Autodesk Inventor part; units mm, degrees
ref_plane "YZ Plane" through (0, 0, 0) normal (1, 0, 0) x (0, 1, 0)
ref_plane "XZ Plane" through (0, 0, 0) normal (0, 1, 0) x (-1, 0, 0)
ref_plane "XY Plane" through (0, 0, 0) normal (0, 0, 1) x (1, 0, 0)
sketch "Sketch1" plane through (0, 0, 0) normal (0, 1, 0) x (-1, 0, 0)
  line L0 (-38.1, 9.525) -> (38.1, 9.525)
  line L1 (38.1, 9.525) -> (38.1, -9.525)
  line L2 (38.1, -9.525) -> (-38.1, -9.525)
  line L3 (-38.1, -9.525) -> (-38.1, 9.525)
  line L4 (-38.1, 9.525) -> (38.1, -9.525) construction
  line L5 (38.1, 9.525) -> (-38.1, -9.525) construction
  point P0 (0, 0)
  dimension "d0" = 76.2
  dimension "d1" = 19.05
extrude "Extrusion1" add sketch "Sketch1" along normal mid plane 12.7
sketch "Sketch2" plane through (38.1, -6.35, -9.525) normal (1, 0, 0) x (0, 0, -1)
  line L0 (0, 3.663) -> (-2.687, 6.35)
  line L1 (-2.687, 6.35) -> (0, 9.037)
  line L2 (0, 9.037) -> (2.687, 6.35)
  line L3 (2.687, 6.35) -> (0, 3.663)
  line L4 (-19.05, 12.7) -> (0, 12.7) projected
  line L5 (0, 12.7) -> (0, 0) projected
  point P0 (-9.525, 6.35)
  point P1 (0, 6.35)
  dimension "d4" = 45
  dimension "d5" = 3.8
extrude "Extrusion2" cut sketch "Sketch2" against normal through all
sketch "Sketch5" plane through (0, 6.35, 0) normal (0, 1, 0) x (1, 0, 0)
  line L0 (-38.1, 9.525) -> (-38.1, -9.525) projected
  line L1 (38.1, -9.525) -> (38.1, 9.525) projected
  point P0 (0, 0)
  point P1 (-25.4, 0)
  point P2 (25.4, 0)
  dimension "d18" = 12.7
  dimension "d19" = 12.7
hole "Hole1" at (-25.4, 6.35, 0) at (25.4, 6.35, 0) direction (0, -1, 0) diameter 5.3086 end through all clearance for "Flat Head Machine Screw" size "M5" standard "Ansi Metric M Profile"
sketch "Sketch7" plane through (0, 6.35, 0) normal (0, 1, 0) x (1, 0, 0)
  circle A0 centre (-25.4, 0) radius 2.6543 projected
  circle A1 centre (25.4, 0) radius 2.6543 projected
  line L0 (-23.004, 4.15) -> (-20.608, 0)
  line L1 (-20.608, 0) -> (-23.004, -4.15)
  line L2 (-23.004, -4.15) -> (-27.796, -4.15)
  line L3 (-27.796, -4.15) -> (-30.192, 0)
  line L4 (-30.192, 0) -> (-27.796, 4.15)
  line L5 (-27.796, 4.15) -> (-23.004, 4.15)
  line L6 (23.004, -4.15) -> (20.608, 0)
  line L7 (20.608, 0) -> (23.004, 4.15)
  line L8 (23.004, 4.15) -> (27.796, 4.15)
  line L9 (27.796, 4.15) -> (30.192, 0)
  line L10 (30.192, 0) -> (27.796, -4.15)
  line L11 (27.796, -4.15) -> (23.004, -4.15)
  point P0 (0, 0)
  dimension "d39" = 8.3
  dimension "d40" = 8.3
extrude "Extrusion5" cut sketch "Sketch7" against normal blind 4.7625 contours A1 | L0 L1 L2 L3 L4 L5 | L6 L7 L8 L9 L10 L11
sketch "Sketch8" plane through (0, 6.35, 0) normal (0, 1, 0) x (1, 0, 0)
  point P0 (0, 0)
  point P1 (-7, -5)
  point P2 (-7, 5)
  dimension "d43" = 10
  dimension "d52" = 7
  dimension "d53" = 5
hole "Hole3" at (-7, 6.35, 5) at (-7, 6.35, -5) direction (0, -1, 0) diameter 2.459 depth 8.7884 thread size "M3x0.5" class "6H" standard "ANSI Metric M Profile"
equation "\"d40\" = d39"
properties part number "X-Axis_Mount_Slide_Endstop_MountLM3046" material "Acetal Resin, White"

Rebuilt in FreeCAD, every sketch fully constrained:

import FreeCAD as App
import Part
import Sketcher
Q = App.Units.Quantity

doc = App.newDocument("Part")
body = doc.addObject("PartDesign::Body", "Body")

sketch1 = body.newObject("Sketcher::SketchObject", "Sketch")
sketch1.AttachmentSupport = (doc.getObject("XZ_Plane"), [""])
sketch1.MapMode = "FlatFace"
sketch1.addGeometry([
    Part.LineSegment(App.Vector(-38, 10, 0), App.Vector(38, 10, 0)),
    Part.LineSegment(App.Vector(38, 10, 0), App.Vector(38, -10, 0)),
    Part.LineSegment(App.Vector(38, -10, 0), App.Vector(-38, -10, 0)),
    Part.LineSegment(App.Vector(-38, -10, 0), App.Vector(-38, 10, 0)),
], False)
sketch1.addConstraint([
    Sketcher.Constraint("Coincident", 0, 2, 1, 1),
    Sketcher.Constraint("Coincident", 1, 2, 2, 1),
    Sketcher.Constraint("Coincident", 2, 2, 3, 1),
    Sketcher.Constraint("Coincident", 3, 2, 0, 1),
    Sketcher.Constraint("Horizontal", 0),
    Sketcher.Constraint("Vertical", 1),
    Sketcher.Constraint("Horizontal", 2),
    Sketcher.Constraint("Vertical", 3),
    Sketcher.Constraint("Symmetric", 0, 2, 2, 2, -1, 1),
    Sketcher.Constraint("DistanceX", 0, 1, 0, 2, Q("3 in")),
    Sketcher.Constraint("DistanceY", 1, 2, 1, 1, Q("0.75 in")),
])
pad1 = body.newObject("PartDesign::Pad", "Pad")
pad1.Profile = sketch1
pad1.Length = Q("0.5 in")
pad1.Midplane = True

sketch2 = body.newObject("Sketcher::SketchObject", "Sketch001")
sketch2.AttachmentSupport = (doc.getObject("YZ_Plane"), [""])
sketch2.MapMode = "FlatFace"
sketch2.AttachmentOffset = App.Placement(App.Vector(0, 0, 1.5 * 25.4), App.Rotation())
sketch2.addGeometry([
    Part.LineSegment(App.Vector(0, -12.2, 0), App.Vector(2.7, -9.5, 0)),
    Part.LineSegment(App.Vector(2.7, -9.5, 0), App.Vector(0, -6.8, 0)),
    Part.LineSegment(App.Vector(0, -6.8, 0), App.Vector(-2.7, -9.5, 0)),
    Part.LineSegment(App.Vector(-2.7, -9.5, 0), App.Vector(0, -12.2, 0)),
], False)
sketch2.addConstraint([
    Sketcher.Constraint("Coincident", 0, 2, 1, 1),
    Sketcher.Constraint("Coincident", 1, 2, 2, 1),
    Sketcher.Constraint("Coincident", 2, 2, 3, 1),
    Sketcher.Constraint("Coincident", 3, 2, 0, 1),
    Sketcher.Constraint("Symmetric", 0, 2, 2, 2, -2),
    Sketcher.Constraint("PointOnObject", 1, 2, -2),
    Sketcher.Constraint("PointOnObject", 3, 2, -2),
    Sketcher.Constraint("Perpendicular", 0, 1),
    Sketcher.Constraint("Perpendicular", 1, 2),
    Sketcher.Constraint("Distance", 0, Q("0.1496 in")),
    Sketcher.Constraint("DistanceY", 0, 2, -1, 1, Q("0.375 in")),
])
pocket1 = body.newObject("PartDesign::Pocket", "Pocket")
pocket1.Profile = sketch2
pocket1.Type = "ThroughAll"

sketch3 = body.newObject("Sketcher::SketchObject", "Sketch002")
sketch3.AttachmentSupport = (doc.getObject("XZ_Plane"), [""])
sketch3.MapMode = "FlatFace"
sketch3.AttachmentOffset = App.Placement(App.Vector(0, 0, -0.25 * 25.4), App.Rotation())
sketch3.addGeometry([
    Part.Circle(App.Vector(-25.4, 0, 0), App.Vector(0, 0, 1), 2.7),
    Part.Circle(App.Vector(25.4, 0, 0), App.Vector(0, 0, 1), 2.7),
], False)
sketch3.addConstraint([
    Sketcher.Constraint("Equal", 0, 1),
    Sketcher.Constraint("Symmetric", 0, 3, 1, 3, -1, 1),
    Sketcher.Constraint("PointOnObject", 0, 3, -1),
    Sketcher.Constraint("Diameter", 0, Q("0.209 in")),
    Sketcher.Constraint("DistanceX", 0, 3, -1, 1, Q("1 in")),
])
doc.recompute()
hole = body.newObject("PartDesign::Hole", "Hole")
hole.Profile = sketch3
hole.ThreadType = "None"
hole.Diameter = Q("0.209 in")
hole.DepthType = "ThroughAll"
hole.Reversed = True

sketch4 = body.newObject("Sketcher::SketchObject", "Sketch003")
sketch4.AttachmentSupport = (doc.getObject("XZ_Plane"), [""])
sketch4.MapMode = "FlatFace"
sketch4.AttachmentOffset = App.Placement(App.Vector(0, 0, -0.25 * 25.4), App.Rotation())
sketch4.addGeometry([
    Part.LineSegment(App.Vector(20.6, 0, 0), App.Vector(23, 4.2, 0)),
    Part.LineSegment(App.Vector(23, 4.2, 0), App.Vector(27.8, 4.2, 0)),
    Part.LineSegment(App.Vector(27.8, 4.2, 0), App.Vector(30.2, 0, 0)),
    Part.LineSegment(App.Vector(30.2, 0, 0), App.Vector(27.8, -4.2, 0)),
    Part.LineSegment(App.Vector(27.8, -4.2, 0), App.Vector(23, -4.2, 0)),
    Part.LineSegment(App.Vector(23, -4.2, 0), App.Vector(20.6, 0, 0)),
    Part.LineSegment(App.Vector(-20.6, 0, 0), App.Vector(-23, -4.2, 0)),
    Part.LineSegment(App.Vector(-23, -4.2, 0), App.Vector(-27.8, -4.2, 0)),
    Part.LineSegment(App.Vector(-27.8, -4.2, 0), App.Vector(-30.2, 0, 0)),
    Part.LineSegment(App.Vector(-30.2, 0, 0), App.Vector(-27.8, 4.2, 0)),
    Part.LineSegment(App.Vector(-27.8, 4.2, 0), App.Vector(-23, 4.2, 0)),
    Part.LineSegment(App.Vector(-23, 4.2, 0), App.Vector(-20.6, 0, 0)),
    Part.Circle(App.Vector(-25.4, 0, 0), App.Vector(0, 0, 1), 2.7),
], False)
sketch4.addConstraint([
    Sketcher.Constraint("Coincident", 0, 2, 1, 1),
    Sketcher.Constraint("Coincident", 1, 2, 2, 1),
    Sketcher.Constraint("Coincident", 2, 2, 3, 1),
    Sketcher.Constraint("Coincident", 3, 2, 4, 1),
    Sketcher.Constraint("Coincident", 4, 2, 5, 1),
    Sketcher.Constraint("Coincident", 5, 2, 0, 1),
    Sketcher.Constraint("Coincident", 6, 2, 7, 1),
    Sketcher.Constraint("Coincident", 7, 2, 8, 1),
    Sketcher.Constraint("Coincident", 8, 2, 9, 1),
    Sketcher.Constraint("Coincident", 9, 2, 10, 1),
    Sketcher.Constraint("Coincident", 10, 2, 11, 1),
    Sketcher.Constraint("Coincident", 11, 2, 6, 1),
    Sketcher.Constraint("Horizontal", 1),
    Sketcher.Constraint("Horizontal", 4),
    Sketcher.Constraint("Horizontal", 7),
    Sketcher.Constraint("Horizontal", 10),
    Sketcher.Constraint("Symmetric", 0, 2, 6, 2, -1, 1),
    Sketcher.Constraint("Symmetric", 2, 2, 8, 2, -1, 1),
    Sketcher.Constraint("Symmetric", 3, 2, 9, 2, -1, 1),
    Sketcher.Constraint("Symmetric", 5, 2, 11, 2, -1, 1),
    Sketcher.Constraint("Symmetric", 4, 2, 6, 2, -2),
    Sketcher.Constraint("PointOnObject", 12, 3, -1),
    Sketcher.Constraint("PointOnObject", 2, 2, -1),
    Sketcher.Constraint("PointOnObject", 5, 2, -1),
    Sketcher.Constraint("Parallel", 0, 3),
    Sketcher.Constraint("Parallel", 2, 5),
    Sketcher.Constraint("Parallel", 5, 8),
    Sketcher.Constraint("Parallel", 8, 11),
    Sketcher.Constraint("Diameter", 12, Q("0.209 in")),
    Sketcher.Constraint("DistanceX", 12, 3, -1, 1, Q("1 in")),
    Sketcher.Constraint("Angle", 0, Q("60 deg")),
    Sketcher.Constraint("DistanceX", 6, 2, 3, 2, Q("2 in")),
    Sketcher.Constraint("DistanceY", 3, 2, 1, 2, 8.3),
    Sketcher.Constraint("DistanceX", 0, 2, 2, 2, Q("0.283 in")),
])
pocket2 = body.newObject("PartDesign::Pocket", "Pocket001")
pocket2.Profile = sketch4
pocket2.Length = Q("0.1875 in")
pocket2.Reversed = True

sketch5 = body.newObject("Sketcher::SketchObject", "Sketch004")
sketch5.AttachmentSupport = (doc.getObject("XZ_Plane"), [""])
sketch5.MapMode = "FlatFace"
sketch5.AttachmentOffset = App.Placement(App.Vector(0, 0, -0.25 * 25.4), App.Rotation())
sketch5.addGeometry([
    Part.Circle(App.Vector(-7, 5, 0), App.Vector(0, 0, 1), 1.2),
    Part.Circle(App.Vector(-7, -5, 0), App.Vector(0, 0, 1), 1.2),
], False)
sketch5.addConstraint([
    Sketcher.Constraint("Equal", 0, 1),
    Sketcher.Constraint("Symmetric", 0, 3, 1, 3, -1),
    Sketcher.Constraint("Diameter", 0, Q("0.0968 in")),
    Sketcher.Constraint("DistanceX", 0, 3, -1, 1, Q("0.2756 in")),
    Sketcher.Constraint("DistanceY", 1, 3, 0, 3, Q("0.3937 in")),
])
doc.recompute()
hole2 = body.newObject("PartDesign::Hole", "Hole001")
hole2.Profile = sketch5
hole2.ThreadType = "None"
hole2.Diameter = Q("0.096811 in")
hole2.DepthType = "Dimension"
hole2.Depth = Q("0.346 in")
hole2.DrillPoint = "Flat"
hole2.Reversed = True

doc.recompute()
